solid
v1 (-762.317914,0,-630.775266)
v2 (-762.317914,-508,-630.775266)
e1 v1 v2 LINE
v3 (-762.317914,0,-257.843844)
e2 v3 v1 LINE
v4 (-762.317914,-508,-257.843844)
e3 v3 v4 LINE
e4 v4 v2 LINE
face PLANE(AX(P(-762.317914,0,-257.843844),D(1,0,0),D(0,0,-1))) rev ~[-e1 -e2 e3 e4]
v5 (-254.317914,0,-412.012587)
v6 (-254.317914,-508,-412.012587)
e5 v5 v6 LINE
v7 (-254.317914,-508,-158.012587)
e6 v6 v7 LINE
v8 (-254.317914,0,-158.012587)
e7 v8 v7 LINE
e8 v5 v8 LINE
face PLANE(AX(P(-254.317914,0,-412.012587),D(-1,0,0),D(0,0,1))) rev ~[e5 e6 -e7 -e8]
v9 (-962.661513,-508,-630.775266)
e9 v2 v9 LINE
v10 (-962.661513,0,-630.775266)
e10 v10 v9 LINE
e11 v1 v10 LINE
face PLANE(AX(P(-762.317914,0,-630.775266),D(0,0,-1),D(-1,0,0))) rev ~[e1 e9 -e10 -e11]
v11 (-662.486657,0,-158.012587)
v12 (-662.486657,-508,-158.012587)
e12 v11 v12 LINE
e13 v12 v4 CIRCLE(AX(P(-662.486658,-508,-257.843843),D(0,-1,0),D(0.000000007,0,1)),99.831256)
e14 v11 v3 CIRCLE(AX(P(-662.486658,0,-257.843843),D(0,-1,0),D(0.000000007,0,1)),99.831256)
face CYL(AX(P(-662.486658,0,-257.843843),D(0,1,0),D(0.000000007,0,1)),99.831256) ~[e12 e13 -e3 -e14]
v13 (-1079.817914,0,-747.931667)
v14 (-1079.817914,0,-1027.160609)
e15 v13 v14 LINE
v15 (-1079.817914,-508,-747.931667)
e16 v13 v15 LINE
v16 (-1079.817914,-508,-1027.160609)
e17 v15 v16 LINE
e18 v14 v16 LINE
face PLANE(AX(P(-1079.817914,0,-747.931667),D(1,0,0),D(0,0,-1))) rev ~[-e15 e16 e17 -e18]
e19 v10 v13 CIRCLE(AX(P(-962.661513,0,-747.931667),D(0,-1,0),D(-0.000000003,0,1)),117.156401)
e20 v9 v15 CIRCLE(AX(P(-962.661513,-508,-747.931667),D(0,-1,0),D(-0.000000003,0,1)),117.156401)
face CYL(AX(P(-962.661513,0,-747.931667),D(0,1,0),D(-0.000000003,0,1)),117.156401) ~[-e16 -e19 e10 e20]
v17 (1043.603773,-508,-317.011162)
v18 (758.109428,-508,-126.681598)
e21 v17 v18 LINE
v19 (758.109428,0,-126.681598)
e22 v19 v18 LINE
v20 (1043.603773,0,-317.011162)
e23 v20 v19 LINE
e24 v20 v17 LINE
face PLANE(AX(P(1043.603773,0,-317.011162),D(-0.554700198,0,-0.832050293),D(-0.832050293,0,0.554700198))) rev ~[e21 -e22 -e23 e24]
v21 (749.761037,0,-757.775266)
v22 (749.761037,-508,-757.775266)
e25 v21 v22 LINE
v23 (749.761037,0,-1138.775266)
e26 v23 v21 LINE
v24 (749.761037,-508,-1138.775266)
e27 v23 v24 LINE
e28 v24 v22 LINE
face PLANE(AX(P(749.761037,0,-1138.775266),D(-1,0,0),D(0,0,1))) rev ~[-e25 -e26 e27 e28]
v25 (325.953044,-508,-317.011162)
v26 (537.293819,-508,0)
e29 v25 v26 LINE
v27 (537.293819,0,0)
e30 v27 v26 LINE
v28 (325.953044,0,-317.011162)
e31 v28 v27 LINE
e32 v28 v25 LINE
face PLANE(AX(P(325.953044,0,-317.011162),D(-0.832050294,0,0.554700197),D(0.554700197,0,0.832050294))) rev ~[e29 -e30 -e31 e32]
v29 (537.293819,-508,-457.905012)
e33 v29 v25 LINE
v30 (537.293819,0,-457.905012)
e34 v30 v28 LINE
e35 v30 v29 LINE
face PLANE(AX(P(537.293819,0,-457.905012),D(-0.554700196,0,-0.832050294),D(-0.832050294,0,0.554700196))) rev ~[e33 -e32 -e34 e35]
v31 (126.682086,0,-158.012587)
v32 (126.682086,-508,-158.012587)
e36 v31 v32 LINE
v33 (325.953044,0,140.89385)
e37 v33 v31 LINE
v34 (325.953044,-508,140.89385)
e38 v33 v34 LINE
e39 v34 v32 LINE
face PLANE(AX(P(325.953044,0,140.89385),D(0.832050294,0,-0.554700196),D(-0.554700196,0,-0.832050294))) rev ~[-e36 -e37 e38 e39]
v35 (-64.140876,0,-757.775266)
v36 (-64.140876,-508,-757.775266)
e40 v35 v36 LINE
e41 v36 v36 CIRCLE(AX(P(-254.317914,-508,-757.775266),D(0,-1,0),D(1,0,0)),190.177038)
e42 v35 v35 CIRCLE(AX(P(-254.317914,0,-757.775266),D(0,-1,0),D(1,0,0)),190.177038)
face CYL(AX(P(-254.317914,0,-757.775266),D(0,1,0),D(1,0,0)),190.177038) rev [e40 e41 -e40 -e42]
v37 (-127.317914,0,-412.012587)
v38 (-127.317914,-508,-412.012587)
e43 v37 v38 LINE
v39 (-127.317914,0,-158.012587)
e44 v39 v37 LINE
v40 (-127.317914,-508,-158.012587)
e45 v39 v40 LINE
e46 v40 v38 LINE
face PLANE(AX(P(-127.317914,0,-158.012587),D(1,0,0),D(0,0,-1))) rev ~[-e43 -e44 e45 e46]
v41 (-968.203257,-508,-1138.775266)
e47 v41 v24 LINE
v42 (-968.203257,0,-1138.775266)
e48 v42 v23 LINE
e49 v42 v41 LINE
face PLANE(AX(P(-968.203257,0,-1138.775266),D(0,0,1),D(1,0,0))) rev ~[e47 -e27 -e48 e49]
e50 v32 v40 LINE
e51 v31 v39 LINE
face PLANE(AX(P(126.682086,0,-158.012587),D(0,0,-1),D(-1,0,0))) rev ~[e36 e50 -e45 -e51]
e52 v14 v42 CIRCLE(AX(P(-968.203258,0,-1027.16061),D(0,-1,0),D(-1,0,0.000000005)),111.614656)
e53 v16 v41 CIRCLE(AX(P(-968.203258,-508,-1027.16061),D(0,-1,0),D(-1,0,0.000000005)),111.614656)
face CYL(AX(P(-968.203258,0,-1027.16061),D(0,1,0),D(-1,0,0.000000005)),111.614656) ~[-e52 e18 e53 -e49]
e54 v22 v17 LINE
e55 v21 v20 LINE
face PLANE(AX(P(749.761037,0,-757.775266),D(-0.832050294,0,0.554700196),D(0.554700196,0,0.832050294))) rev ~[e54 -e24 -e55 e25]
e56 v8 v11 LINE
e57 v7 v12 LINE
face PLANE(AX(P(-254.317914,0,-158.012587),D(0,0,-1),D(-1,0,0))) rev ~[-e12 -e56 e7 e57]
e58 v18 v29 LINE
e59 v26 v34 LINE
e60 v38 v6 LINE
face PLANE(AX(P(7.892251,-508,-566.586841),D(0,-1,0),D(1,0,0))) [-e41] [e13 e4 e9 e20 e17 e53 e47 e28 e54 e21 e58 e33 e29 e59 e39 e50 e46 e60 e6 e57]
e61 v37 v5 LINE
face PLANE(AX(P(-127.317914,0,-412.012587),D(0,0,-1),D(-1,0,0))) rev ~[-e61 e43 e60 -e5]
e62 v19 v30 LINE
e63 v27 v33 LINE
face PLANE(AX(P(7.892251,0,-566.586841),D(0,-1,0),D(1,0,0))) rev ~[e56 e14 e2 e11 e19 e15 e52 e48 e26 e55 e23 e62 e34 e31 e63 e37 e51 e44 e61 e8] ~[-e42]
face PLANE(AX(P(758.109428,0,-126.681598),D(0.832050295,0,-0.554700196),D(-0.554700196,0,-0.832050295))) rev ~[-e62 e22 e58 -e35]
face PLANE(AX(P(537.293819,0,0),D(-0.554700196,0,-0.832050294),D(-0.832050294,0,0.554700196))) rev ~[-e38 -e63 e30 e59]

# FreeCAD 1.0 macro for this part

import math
import FreeCAD as App
import Part
import Sketcher

V = App.Vector
Q = App.Units.Quantity

doc = App.newDocument("Part")
body = doc.addObject("PartDesign::Body", "Body")

# Sketch on XZ plane
sketch1 = body.newObject("Sketcher::SketchObject", "Sketch")
sketch1.AttachmentSupport = (doc.getObject("XZ_Plane"), [""])
sketch1.MapMode = "FlatFace"
sketch1.addGeometry(Part.LineSegment(V(-762.317914, -257.843844, 0), V(-762.317914, -630.775266, 0)), False)
sketch1.addGeometry(Part.LineSegment(V(-762.317914, -630.775266, 0), V(-962.661513, -630.775266, 0)), False)
sketch1.addGeometry(Part.ArcOfCircle(Part.Circle(V(-962.661513, -747.931667, 0), V(0, 0, 1), 117.156401), math.radians(90), math.radians(180)), False)
sketch1.addGeometry(Part.LineSegment(V(-1079.817914, -747.931667, 0), V(-1079.817914, -1027.160609, 0)), False)
sketch1.addGeometry(Part.ArcOfCircle(Part.Circle(V(-968.203258, -1027.16061, 0), V(0, 0, 1), 111.614656), math.radians(180), math.radians(270)), False)
sketch1.addGeometry(Part.LineSegment(V(-968.203257, -1138.775266, 0), V(749.761037, -1138.775266, 0)), False)
sketch1.addGeometry(Part.LineSegment(V(749.761037, -1138.775266, 0), V(749.761037, -757.775266, 0)), False)
sketch1.addGeometry(Part.LineSegment(V(749.761037, -757.775266, 0), V(1043.603773, -317.011162, 0)), False)
sketch1.addGeometry(Part.LineSegment(V(1043.603773, -317.011162, 0), V(758.109428, -126.681598, 0)), False)
sketch1.addGeometry(Part.LineSegment(V(758.109428, -126.681598, 0), V(537.293819, -457.905012, 0)), False)
sketch1.addGeometry(Part.LineSegment(V(537.293819, -457.905012, 0), V(325.953044, -317.011162, 0)), False)
sketch1.addGeometry(Part.LineSegment(V(325.953044, -317.011162, 0), V(537.293819, 0, 0)), False)
sketch1.addGeometry(Part.LineSegment(V(537.293819, 0, 0), V(325.953044, 140.89385, 0)), False)
sketch1.addGeometry(Part.LineSegment(V(325.953044, 140.89385, 0), V(126.682086, -158.012587, 0)), False)
sketch1.addGeometry(Part.LineSegment(V(126.682086, -158.012587, 0), V(-127.317914, -158.012587, 0)), False)
sketch1.addGeometry(Part.LineSegment(V(-127.317914, -158.012587, 0), V(-127.317914, -412.012587, 0)), False)
sketch1.addGeometry(Part.LineSegment(V(-127.317914, -412.012587, 0), V(-254.317914, -412.012587, 0)), False)
sketch1.addGeometry(Part.LineSegment(V(-254.317914, -412.012587, 0), V(-254.317914, -158.012587, 0)), False)
sketch1.addGeometry(Part.LineSegment(V(-254.317914, -158.012587, 0), V(-662.486657, -158.012587, 0)), False)
sketch1.addGeometry(Part.ArcOfCircle(Part.Circle(V(-662.486658, -257.843843, 0), V(0, 0, 1), 99.831256), math.radians(90), math.radians(180)), False)
sketch1.addGeometry(Part.Circle(V(-254.317914, -757.775266, 0), V(0, 0, 1), 190.177038), False)
sketch1.addConstraint(Sketcher.Constraint("Coincident", 0, 2, 1, 1))
sketch1.addConstraint(Sketcher.Constraint("Tangent", 1, 2, 2, 1))
sketch1.addConstraint(Sketcher.Constraint("Tangent", 2, 2, 3, 1))
sketch1.addConstraint(Sketcher.Constraint("Tangent", 3, 2, 4, 1))
sketch1.addConstraint(Sketcher.Constraint("Tangent", 4, 2, 5, 1))
sketch1.addConstraint(Sketcher.Constraint("Coincident", 5, 2, 6, 1))
sketch1.addConstraint(Sketcher.Constraint("Coincident", 6, 2, 7, 1))
sketch1.addConstraint(Sketcher.Constraint("Coincident", 7, 2, 8, 1))
sketch1.addConstraint(Sketcher.Constraint("Coincident", 8, 2, 9, 1))
sketch1.addConstraint(Sketcher.Constraint("Coincident", 9, 2, 10, 1))
sketch1.addConstraint(Sketcher.Constraint("Coincident", 10, 2, 11, 1))
sketch1.addConstraint(Sketcher.Constraint("Coincident", 11, 2, 12, 1))
sketch1.addConstraint(Sketcher.Constraint("Coincident", 12, 2, 13, 1))
sketch1.addConstraint(Sketcher.Constraint("Coincident", 13, 2, 14, 1))
sketch1.addConstraint(Sketcher.Constraint("Coincident", 14, 2, 15, 1))
sketch1.addConstraint(Sketcher.Constraint("Coincident", 15, 2, 16, 1))
sketch1.addConstraint(Sketcher.Constraint("Coincident", 16, 2, 17, 1))
sketch1.addConstraint(Sketcher.Constraint("Coincident", 17, 2, 18, 1))
sketch1.addConstraint(Sketcher.Constraint("Tangent", 18, 2, 19, 1))
sketch1.addConstraint(Sketcher.Constraint("Tangent", 19, 2, 0, 1))
sketch1.addConstraint(Sketcher.Constraint("Vertical", 0))
sketch1.addConstraint(Sketcher.Constraint("Horizontal", 1))
sketch1.addConstraint(Sketcher.Constraint("Vertical", 3))
sketch1.addConstraint(Sketcher.Constraint("Horizontal", 5))
sketch1.addConstraint(Sketcher.Constraint("Vertical", 6))
sketch1.addConstraint(Sketcher.Constraint("Horizontal", 14))
sketch1.addConstraint(Sketcher.Constraint("Vertical", 15))
sketch1.addConstraint(Sketcher.Constraint("Horizontal", 16))
sketch1.addConstraint(Sketcher.Constraint("Vertical", 17))
sketch1.addConstraint(Sketcher.Constraint("Horizontal", 18))
sketch1.addConstraint(Sketcher.Constraint("PointOnObject", 11, 2, -1))
sketch1.addConstraint(Sketcher.Constraint("Perpendicular", 7, 8))
sketch1.addConstraint(Sketcher.Constraint("Perpendicular", 8, 9))
sketch1.addConstraint(Sketcher.Constraint("Perpendicular", 9, 10))
sketch1.addConstraint(Sketcher.Constraint("Perpendicular", 10, 11))
sketch1.addConstraint(Sketcher.Constraint("Perpendicular", 11, 12))
sketch1.addConstraint(Sketcher.Constraint("Perpendicular", 12, 13))
sketch1.addConstraint(Sketcher.Constraint("Horizontal", 20, 3, 6, 2))
sketch1.addConstraint(Sketcher.Constraint("Horizontal", 7, 2, 10, 2))
sketch1.addConstraint(Sketcher.Constraint("Horizontal", 14, 2, 17, 2))
sketch1.addConstraint(Sketcher.Constraint("Vertical", 9, 2, 11, 2))
sketch1.addConstraint(Sketcher.Constraint("Vertical", 10, 2, 12, 2))
sketch1.addConstraint(Sketcher.Constraint("Vertical", 20, 3, 16, 2))
sketch1.addConstraint(Sketcher.Constraint("Equal", 14, 15))
sketch1.addConstraint(Sketcher.Constraint("DistanceX", 14, 2, 14, 1, Q("10 in")))
sketch1.addConstraint(Sketcher.Constraint("DistanceX", 16, 2, 16, 1, Q("5 in")))
sketch1.addConstraint(Sketcher.Constraint("DistanceY", 6, 1, 6, 2, Q("15 in")))
sketch1.addConstraint(Sketcher.Constraint("Distance", 10, Q("10 in")))
sketch1.addConstraint(Sketcher.Constraint("Distance", 11, Q("15 in")))
sketch1.addConstraint(Sketcher.Constraint("DistanceX", 0, 2, 20, 3, Q("20 in")))
sketch1.addConstraint(Sketcher.Constraint("DistanceY", 20, 3, 0, 2, Q("5 in")))
sketch1.addConstraint(Sketcher.Constraint("DistanceX", 2, 2, 0, 2, Q("12.5 in")))
sketch1.addConstraint(Sketcher.Constraint("Radius", 2, 117.156401))
sketch1.addConstraint(Sketcher.Constraint("Diameter", 20, 380.354076))
sketch1.addConstraint(Sketcher.Constraint("DistanceX", -1, 1, 9, 2, Q("21.1533 in")))
sketch1.addConstraint(Sketcher.Constraint("Radius", 4, 111.614656))
sketch1.addConstraint(Sketcher.Constraint("Radius", 19, 99.831256))
sketch1.addConstraint(Sketcher.Constraint("Distance", 8, 343.1215))
sketch1.addConstraint(Sketcher.Constraint("DistanceY", 0, 2, 0, 1, 372.931422))
sketch1.addConstraint(Sketcher.Constraint("Distance", 13, 359.240828))
pad1 = body.newObject("PartDesign::Pad", "Pad")
pad1.Profile = sketch1
pad1.Length = Q("20 in")

doc.recompute()
